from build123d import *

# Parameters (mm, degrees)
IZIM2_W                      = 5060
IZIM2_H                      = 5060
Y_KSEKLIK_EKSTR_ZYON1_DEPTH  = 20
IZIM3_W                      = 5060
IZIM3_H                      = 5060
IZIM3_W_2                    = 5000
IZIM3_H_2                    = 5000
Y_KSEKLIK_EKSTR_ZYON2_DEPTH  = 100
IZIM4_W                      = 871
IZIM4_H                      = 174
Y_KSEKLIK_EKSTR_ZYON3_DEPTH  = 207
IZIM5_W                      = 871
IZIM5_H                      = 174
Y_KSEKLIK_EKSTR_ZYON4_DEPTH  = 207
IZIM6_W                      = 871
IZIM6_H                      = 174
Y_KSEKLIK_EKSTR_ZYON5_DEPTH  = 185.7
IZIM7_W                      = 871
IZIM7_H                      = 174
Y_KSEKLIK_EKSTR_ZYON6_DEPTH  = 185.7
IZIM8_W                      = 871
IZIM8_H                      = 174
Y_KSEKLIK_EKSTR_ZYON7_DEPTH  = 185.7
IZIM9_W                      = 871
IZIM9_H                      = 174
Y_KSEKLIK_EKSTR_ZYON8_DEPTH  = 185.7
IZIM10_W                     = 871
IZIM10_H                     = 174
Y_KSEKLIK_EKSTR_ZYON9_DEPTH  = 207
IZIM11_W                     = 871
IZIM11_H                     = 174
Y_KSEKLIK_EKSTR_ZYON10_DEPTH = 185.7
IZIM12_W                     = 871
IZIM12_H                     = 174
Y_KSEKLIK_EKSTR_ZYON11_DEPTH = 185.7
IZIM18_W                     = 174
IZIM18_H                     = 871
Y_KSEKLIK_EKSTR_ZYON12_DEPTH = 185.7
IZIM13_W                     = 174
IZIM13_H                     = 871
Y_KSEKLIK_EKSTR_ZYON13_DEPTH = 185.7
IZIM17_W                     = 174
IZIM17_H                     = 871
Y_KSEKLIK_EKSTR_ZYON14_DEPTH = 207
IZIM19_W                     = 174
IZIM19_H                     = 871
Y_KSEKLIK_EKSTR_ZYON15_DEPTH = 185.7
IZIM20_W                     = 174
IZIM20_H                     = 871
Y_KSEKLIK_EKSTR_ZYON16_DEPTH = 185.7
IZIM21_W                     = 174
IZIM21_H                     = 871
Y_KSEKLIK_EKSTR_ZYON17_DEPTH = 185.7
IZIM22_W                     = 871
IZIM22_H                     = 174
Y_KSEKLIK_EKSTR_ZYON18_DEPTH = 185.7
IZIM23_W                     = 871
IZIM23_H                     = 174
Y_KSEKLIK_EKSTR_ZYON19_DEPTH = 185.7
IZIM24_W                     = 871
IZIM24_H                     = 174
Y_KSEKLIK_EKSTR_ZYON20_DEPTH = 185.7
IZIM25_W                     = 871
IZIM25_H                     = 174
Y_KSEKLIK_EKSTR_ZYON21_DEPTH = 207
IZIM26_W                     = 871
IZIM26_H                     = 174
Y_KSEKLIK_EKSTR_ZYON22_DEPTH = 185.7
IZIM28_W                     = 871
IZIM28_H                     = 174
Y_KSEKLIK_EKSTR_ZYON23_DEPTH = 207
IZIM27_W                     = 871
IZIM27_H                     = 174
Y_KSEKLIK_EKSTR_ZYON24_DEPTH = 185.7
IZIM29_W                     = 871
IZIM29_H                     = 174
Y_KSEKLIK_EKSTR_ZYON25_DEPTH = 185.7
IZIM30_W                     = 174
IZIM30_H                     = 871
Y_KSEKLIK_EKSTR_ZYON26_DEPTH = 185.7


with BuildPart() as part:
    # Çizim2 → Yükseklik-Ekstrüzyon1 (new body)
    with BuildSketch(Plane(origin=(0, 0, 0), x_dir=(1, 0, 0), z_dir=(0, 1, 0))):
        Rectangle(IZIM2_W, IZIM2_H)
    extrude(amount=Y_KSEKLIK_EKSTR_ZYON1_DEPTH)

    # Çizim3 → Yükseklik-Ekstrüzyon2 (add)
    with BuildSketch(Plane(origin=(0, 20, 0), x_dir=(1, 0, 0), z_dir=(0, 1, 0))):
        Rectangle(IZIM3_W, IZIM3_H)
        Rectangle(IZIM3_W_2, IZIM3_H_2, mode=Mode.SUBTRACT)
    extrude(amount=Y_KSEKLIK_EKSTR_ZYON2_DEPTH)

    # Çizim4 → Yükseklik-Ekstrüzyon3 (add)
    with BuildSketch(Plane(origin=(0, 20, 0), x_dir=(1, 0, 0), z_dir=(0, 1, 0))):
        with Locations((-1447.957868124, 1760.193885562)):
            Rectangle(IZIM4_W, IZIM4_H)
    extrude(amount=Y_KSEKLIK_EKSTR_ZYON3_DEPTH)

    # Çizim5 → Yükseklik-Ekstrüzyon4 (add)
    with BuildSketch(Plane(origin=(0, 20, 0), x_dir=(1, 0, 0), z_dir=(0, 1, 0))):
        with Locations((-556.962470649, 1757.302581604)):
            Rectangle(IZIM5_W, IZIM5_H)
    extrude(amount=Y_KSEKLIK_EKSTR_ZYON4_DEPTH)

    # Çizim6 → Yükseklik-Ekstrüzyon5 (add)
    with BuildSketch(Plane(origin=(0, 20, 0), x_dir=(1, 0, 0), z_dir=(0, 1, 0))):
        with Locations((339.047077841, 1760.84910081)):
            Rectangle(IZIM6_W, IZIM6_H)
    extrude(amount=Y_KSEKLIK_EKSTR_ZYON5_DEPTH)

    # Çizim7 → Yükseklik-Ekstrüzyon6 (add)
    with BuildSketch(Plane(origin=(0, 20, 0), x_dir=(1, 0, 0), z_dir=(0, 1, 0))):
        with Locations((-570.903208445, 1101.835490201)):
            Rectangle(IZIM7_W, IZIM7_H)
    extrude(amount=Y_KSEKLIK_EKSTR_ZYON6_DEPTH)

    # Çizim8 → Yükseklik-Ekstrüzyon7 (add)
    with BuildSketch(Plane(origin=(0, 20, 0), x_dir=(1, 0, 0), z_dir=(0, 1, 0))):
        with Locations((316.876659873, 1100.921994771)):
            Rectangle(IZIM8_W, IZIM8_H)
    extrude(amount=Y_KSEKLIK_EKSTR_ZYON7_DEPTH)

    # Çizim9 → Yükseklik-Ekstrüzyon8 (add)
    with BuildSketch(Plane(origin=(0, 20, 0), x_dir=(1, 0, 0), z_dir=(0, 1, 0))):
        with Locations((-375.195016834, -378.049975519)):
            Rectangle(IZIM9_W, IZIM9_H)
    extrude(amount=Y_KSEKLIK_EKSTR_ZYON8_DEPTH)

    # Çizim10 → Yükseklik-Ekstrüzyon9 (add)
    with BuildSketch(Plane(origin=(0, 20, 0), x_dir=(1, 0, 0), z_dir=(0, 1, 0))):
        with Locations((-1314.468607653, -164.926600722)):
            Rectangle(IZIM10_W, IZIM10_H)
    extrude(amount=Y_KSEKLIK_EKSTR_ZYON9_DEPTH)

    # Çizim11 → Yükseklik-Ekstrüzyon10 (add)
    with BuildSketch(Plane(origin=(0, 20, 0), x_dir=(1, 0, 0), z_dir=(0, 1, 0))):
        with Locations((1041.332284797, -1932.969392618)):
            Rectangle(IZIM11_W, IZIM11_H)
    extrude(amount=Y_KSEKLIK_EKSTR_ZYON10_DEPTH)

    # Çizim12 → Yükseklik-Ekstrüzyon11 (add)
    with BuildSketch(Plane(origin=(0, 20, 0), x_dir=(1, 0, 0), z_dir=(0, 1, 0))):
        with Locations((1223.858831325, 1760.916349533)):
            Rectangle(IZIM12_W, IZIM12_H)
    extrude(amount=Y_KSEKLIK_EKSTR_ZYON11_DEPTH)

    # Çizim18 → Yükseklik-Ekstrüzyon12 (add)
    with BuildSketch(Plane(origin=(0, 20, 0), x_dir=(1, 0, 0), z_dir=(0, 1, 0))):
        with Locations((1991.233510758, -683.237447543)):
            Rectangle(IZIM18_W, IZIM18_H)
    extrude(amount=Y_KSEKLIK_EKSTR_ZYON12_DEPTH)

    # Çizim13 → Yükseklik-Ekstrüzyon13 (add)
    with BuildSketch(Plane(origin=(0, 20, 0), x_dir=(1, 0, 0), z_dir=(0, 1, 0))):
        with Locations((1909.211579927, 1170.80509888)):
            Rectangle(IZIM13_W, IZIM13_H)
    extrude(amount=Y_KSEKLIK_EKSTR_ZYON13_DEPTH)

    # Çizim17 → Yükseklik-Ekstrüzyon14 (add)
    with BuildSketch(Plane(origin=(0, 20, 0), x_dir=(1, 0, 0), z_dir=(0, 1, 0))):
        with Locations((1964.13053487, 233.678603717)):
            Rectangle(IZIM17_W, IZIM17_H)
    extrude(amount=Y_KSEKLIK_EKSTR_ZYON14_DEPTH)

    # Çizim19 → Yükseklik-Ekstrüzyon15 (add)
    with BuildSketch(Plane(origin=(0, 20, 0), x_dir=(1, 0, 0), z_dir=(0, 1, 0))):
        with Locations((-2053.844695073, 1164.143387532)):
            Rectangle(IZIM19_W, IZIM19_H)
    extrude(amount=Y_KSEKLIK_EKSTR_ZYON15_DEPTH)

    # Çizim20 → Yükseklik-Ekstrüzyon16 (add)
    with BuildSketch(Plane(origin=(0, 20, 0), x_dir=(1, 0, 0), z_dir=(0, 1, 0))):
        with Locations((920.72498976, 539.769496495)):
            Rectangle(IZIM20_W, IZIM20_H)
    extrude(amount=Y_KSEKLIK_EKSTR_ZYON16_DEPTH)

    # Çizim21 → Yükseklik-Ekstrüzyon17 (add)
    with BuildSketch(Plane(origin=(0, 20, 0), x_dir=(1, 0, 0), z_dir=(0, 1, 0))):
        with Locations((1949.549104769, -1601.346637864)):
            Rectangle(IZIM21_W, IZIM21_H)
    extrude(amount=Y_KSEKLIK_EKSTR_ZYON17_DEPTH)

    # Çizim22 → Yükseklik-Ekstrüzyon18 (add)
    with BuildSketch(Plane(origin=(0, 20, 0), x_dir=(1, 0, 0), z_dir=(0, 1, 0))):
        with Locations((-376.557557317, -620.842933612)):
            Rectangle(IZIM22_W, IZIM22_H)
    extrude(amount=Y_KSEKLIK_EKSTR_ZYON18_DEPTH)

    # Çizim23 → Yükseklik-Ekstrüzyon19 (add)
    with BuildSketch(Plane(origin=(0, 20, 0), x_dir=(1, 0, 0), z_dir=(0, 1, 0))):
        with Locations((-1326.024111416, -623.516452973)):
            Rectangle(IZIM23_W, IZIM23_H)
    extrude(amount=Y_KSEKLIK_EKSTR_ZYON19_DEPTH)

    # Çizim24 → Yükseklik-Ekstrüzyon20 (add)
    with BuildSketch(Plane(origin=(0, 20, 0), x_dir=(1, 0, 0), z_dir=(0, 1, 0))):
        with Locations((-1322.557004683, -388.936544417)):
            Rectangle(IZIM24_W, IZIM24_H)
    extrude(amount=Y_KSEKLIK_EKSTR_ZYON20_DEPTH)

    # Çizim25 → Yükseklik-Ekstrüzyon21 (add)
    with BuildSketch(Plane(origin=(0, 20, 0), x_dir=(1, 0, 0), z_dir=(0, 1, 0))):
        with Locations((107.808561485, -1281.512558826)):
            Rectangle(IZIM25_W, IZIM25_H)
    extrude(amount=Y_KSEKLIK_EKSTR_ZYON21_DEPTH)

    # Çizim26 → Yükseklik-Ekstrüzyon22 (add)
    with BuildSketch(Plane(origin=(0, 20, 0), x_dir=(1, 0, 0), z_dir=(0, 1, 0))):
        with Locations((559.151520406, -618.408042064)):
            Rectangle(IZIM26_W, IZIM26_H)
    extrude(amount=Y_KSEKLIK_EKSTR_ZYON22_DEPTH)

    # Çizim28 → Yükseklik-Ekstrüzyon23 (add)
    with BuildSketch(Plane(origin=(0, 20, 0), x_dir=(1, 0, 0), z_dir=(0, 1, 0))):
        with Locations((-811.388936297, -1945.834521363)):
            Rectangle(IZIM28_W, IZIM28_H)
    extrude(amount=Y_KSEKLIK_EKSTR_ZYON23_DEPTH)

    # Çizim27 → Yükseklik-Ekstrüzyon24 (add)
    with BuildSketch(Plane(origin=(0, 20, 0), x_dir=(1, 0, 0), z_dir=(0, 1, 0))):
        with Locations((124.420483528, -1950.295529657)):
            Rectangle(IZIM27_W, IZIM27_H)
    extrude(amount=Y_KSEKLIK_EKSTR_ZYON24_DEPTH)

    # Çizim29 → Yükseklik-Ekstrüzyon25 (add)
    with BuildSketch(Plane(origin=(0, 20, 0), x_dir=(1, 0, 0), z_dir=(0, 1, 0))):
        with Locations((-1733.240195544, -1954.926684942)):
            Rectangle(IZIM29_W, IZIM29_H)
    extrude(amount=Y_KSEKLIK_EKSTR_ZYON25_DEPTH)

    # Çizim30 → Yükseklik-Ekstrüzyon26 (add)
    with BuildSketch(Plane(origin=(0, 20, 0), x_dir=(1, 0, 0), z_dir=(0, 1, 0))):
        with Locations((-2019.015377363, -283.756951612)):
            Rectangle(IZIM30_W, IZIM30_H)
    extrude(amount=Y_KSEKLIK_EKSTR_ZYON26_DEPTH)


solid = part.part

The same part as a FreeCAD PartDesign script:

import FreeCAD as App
import Part
import Sketcher

V = App.Vector

doc = App.newDocument("Part")
body = doc.addObject("PartDesign::Body", "Body")

# Sketch on XZ plane
sketch1 = body.newObject("Sketcher::SketchObject", "Sketch")
sketch1.AttachmentSupport = (doc.getObject("XZ_Plane"), [""])
sketch1.MapMode = "FlatFace"
sketch1.addGeometry([
    Part.LineSegment(V(-2530, -2530, 0), V(-2530, 2530, 0)),
    Part.LineSegment(V(-2530, 2530, 0), V(2530, 2530, 0)),
    Part.LineSegment(V(2530, 2530, 0), V(2530, -2530, 0)),
    Part.LineSegment(V(2530, -2530, 0), V(-2530, -2530, 0)),
], False)
sketch1.addConstraint([
    Sketcher.Constraint("Coincident", 0, 2, 1, 1),
    Sketcher.Constraint("Coincident", 1, 2, 2, 1),
    Sketcher.Constraint("Coincident", 2, 2, 3, 1),
    Sketcher.Constraint("Coincident", 3, 2, 0, 1),
    Sketcher.Constraint("Vertical", 0),
    Sketcher.Constraint("Horizontal", 1),
    Sketcher.Constraint("Vertical", 2),
    Sketcher.Constraint("Horizontal", 3),
    Sketcher.Constraint("Symmetric", 0, 2, 2, 2, -1, 1),
    Sketcher.Constraint("Equal", 3, 0),
    Sketcher.Constraint("DistanceX", 1, 1, 1, 2, 5060.0),
])
pad1 = body.newObject("PartDesign::Pad", "Pad")
pad1.Profile = sketch1
pad1.Length = 20
pad1.Reversed = True

# Sketch on XZ plane
sketch2 = body.newObject("Sketcher::SketchObject", "Sketch001")
sketch2.AttachmentSupport = (doc.getObject("XZ_Plane"), [""])
sketch2.MapMode = "FlatFace"
sketch2.AttachmentOffset = App.Placement(V(0, 0, -20), App.Rotation())
sketch2.addGeometry([
    Part.LineSegment(V(-2530, -2530, 0), V(-2530, 2530, 0)),  # 0
    Part.LineSegment(V(-2530, 2530, 0), V(2530, 2530, 0)),  # 1
    Part.LineSegment(V(2530, 2530, 0), V(2530, -2530, 0)),  # 2
    Part.LineSegment(V(2530, -2530, 0), V(-2530, -2530, 0)),  # 3
    Part.LineSegment(V(2500, 2500, 0), V(-2500, 2500, 0)),  # 4
    Part.LineSegment(V(-2500, 2500, 0), V(-2500, -2500, 0)),  # 5
    Part.LineSegment(V(-2500, -2500, 0), V(2500, -2500, 0)),  # 6
    Part.LineSegment(V(2500, -2500, 0), V(2500, 2500, 0)),  # 7
], False)
sketch2.addConstraint([
    Sketcher.Constraint("Coincident", 0, 2, 1, 1),
    Sketcher.Constraint("Coincident", 1, 2, 2, 1),
    Sketcher.Constraint("Coincident", 2, 2, 3, 1),
    Sketcher.Constraint("Coincident", 3, 2, 0, 1),
    Sketcher.Constraint("Coincident", 4, 2, 5, 1),
    Sketcher.Constraint("Coincident", 5, 2, 6, 1),
    Sketcher.Constraint("Coincident", 6, 2, 7, 1),
    Sketcher.Constraint("Coincident", 7, 2, 4, 1),
    Sketcher.Constraint("Vertical", 0),
    Sketcher.Constraint("Horizontal", 1),
    Sketcher.Constraint("Vertical", 2),
    Sketcher.Constraint("Horizontal", 3),
    Sketcher.Constraint("Horizontal", 4),
    Sketcher.Constraint("Vertical", 5),
    Sketcher.Constraint("Horizontal", 6),
    Sketcher.Constraint("Vertical", 7),
    Sketcher.Constraint("Symmetric", 0, 2, 2, 2, -1, 1),
    Sketcher.Constraint("Symmetric", 4, 2, 6, 2, -1, 1),
    Sketcher.Constraint("Equal", 3, 0),
    Sketcher.Constraint("Equal", 6, 5),
    Sketcher.Constraint("DistanceX", 1, 1, 1, 2, 5060.0),
    Sketcher.Constraint("DistanceX", 4, 2, 4, 1, 5000.0),
])
pad2 = body.newObject("PartDesign::Pad", "Pad001")
pad2.Profile = sketch2
pad2.Length = 100
pad2.Reversed = True

# Sketch on XZ plane
sketch3 = body.newObject("Sketcher::SketchObject", "Sketch002")
sketch3.AttachmentSupport = (doc.getObject("XZ_Plane"), [""])
sketch3.MapMode = "FlatFace"
sketch3.AttachmentOffset = App.Placement(V(0, 0, -20), App.Rotation())
sketch3.addGeometry([
    Part.LineSegment(V(-1883, -1847, 0), V(-1883, -1673, 0)),
    Part.LineSegment(V(-1883, -1673, 0), V(-1012, -1673, 0)),
    Part.LineSegment(V(-1012, -1673, 0), V(-1012, -1847, 0)),
    Part.LineSegment(V(-1012, -1847, 0), V(-1883, -1847, 0)),
], False)
sketch3.addConstraint([
    Sketcher.Constraint("Coincident", 0, 2, 1, 1),
    Sketcher.Constraint("Coincident", 1, 2, 2, 1),
    Sketcher.Constraint("Coincident", 2, 2, 3, 1),
    Sketcher.Constraint("Coincident", 3, 2, 0, 1),
    Sketcher.Constraint("Vertical", 0),
    Sketcher.Constraint("Horizontal", 1),
    Sketcher.Constraint("Vertical", 2),
    Sketcher.Constraint("Horizontal", 3),
    Sketcher.Constraint("DistanceX", 1, 1, 1, 2, 871.0),
    Sketcher.Constraint("DistanceY", 0, 1, 0, 2, 174.0),
    Sketcher.Constraint("DistanceX", 0, 2, -1, 1, 1883.457868),
    Sketcher.Constraint("DistanceY", 0, 2, -1, 1, 1673.193886),
])
pad3 = body.newObject("PartDesign::Pad", "Pad002")
pad3.Profile = sketch3
pad3.Length = 207
pad3.Reversed = True

# Sketch on XZ plane
sketch4 = body.newObject("Sketcher::SketchObject", "Sketch003")
sketch4.AttachmentSupport = (doc.getObject("XZ_Plane"), [""])
sketch4.MapMode = "FlatFace"
sketch4.AttachmentOffset = App.Placement(V(0, 0, -20), App.Rotation())
sketch4.addGeometry([
    Part.LineSegment(V(-992, -1844, 0), V(-992, -1670, 0)),
    Part.LineSegment(V(-992, -1670, 0), V(-121, -1670, 0)),
    Part.LineSegment(V(-121, -1670, 0), V(-121, -1844, 0)),
    Part.LineSegment(V(-121, -1844, 0), V(-992, -1844, 0)),
], False)
sketch4.addConstraint([
    Sketcher.Constraint("Coincident", 0, 2, 1, 1),
    Sketcher.Constraint("Coincident", 1, 2, 2, 1),
    Sketcher.Constraint("Coincident", 2, 2, 3, 1),
    Sketcher.Constraint("Coincident", 3, 2, 0, 1),
    Sketcher.Constraint("Vertical", 0),
    Sketcher.Constraint("Horizontal", 1),
    Sketcher.Constraint("Vertical", 2),
    Sketcher.Constraint("Horizontal", 3),
    Sketcher.Constraint("DistanceX", 1, 1, 1, 2, 871.0),
    Sketcher.Constraint("DistanceY", 0, 1, 0, 2, 174.0),
    Sketcher.Constraint("DistanceX", 0, 2, -1, 1, 992.462471),
    Sketcher.Constraint("DistanceY", 0, 2, -1, 1, 1670.302582),
])
pad4 = body.newObject("PartDesign::Pad", "Pad003")
pad4.Profile = sketch4
pad4.Length = 207
pad4.Reversed = True

# Sketch on XZ plane
sketch5 = body.newObject("Sketcher::SketchObject", "Sketch004")
sketch5.AttachmentSupport = (doc.getObject("XZ_Plane"), [""])
sketch5.MapMode = "FlatFace"
sketch5.AttachmentOffset = App.Placement(V(0, 0, -20), App.Rotation())
sketch5.addGeometry([
    Part.LineSegment(V(-96, -1848, 0), V(-96, -1674, 0)),
    Part.LineSegment(V(-96, -1674, 0), V(775, -1674, 0)),
    Part.LineSegment(V(775, -1674, 0), V(775, -1848, 0)),
    Part.LineSegment(V(775, -1848, 0), V(-96, -1848, 0)),
], False)
sketch5.addConstraint([
    Sketcher.Constraint("Coincident", 0, 2, 1, 1),
    Sketcher.Constraint("Coincident", 1, 2, 2, 1),
    Sketcher.Constraint("Coincident", 2, 2, 3, 1),
    Sketcher.Constraint("Coincident", 3, 2, 0, 1),
    Sketcher.Constraint("Vertical", 0),
    Sketcher.Constraint("Horizontal", 1),
    Sketcher.Constraint("Vertical", 2),
    Sketcher.Constraint("Horizontal", 3),
    Sketcher.Constraint("DistanceX", 1, 1, 1, 2, 871.0),
    Sketcher.Constraint("DistanceY", 0, 1, 0, 2, 174.0),
    Sketcher.Constraint("DistanceY", 0, 2, -1, 1, 1673.849101),
    Sketcher.Constraint("DistanceX", 0, 2, -1, 1, 96.452922),
])
pad5 = body.newObject("PartDesign::Pad", "Pad004")
pad5.Profile = sketch5
pad5.Length = 185.7
pad5.Reversed = True

# Sketch on XZ plane
sketch6 = body.newObject("Sketcher::SketchObject", "Sketch005")
sketch6.AttachmentSupport = (doc.getObject("XZ_Plane"), [""])
sketch6.MapMode = "FlatFace"
sketch6.AttachmentOffset = App.Placement(V(0, 0, -20), App.Rotation())
sketch6.addGeometry([
    Part.LineSegment(V(-1006, -1189, 0), V(-1006, -1015, 0)),
    Part.LineSegment(V(-1006, -1015, 0), V(-135, -1015, 0)),
    Part.LineSegment(V(-135, -1015, 0), V(-135, -1189, 0)),
    Part.LineSegment(V(-135, -1189, 0), V(-1006, -1189, 0)),
], False)
sketch6.addConstraint([
    Sketcher.Constraint("Coincident", 0, 2, 1, 1),
    Sketcher.Constraint("Coincident", 1, 2, 2, 1),
    Sketcher.Constraint("Coincident", 2, 2, 3, 1),
    Sketcher.Constraint("Coincident", 3, 2, 0, 1),
    Sketcher.Constraint("Vertical", 0),
    Sketcher.Constraint("Horizontal", 1),
    Sketcher.Constraint("Vertical", 2),
    Sketcher.Constraint("Horizontal", 3),
    Sketcher.Constraint("DistanceX", 1, 1, 1, 2, 871.0),
    Sketcher.Constraint("DistanceY", 0, 1, 0, 2, 174.0),
    Sketcher.Constraint("DistanceX", 0, 2, -1, 1, 1006.403208),
    Sketcher.Constraint("DistanceY", 0, 2, -1, 1, 1014.83549),
])
pad6 = body.newObject("PartDesign::Pad", "Pad005")
pad6.Profile = sketch6
pad6.Length = 185.7
pad6.Reversed = True

# Sketch on XZ plane
sketch7 = body.newObject("Sketcher::SketchObject", "Sketch006")
sketch7.AttachmentSupport = (doc.getObject("XZ_Plane"), [""])
sketch7.MapMode = "FlatFace"
sketch7.AttachmentOffset = App.Placement(V(0, 0, -20), App.Rotation())
sketch7.addGeometry([
    Part.LineSegment(V(-119, -1188, 0), V(-119, -1014, 0)),
    Part.LineSegment(V(-119, -1014, 0), V(752, -1014, 0)),
    Part.LineSegment(V(752, -1014, 0), V(752, -1188, 0)),
    Part.LineSegment(V(752, -1188, 0), V(-119, -1188, 0)),
], False)
sketch7.addConstraint([
    Sketcher.Constraint("Coincident", 0, 2, 1, 1),
    Sketcher.Constraint("Coincident", 1, 2, 2, 1),
    Sketcher.Constraint("Coincident", 2, 2, 3, 1),
    Sketcher.Constraint("Coincident", 3, 2, 0, 1),
    Sketcher.Constraint("Vertical", 0),
    Sketcher.Constraint("Horizontal", 1),
    Sketcher.Constraint("Vertical", 2),
    Sketcher.Constraint("Horizontal", 3),
    Sketcher.Constraint("DistanceX", 1, 1, 1, 2, 871.0),
    Sketcher.Constraint("DistanceY", 0, 1, 0, 2, 174.0),
    Sketcher.Constraint("DistanceX", 0, 2, -1, 1, 118.62334),
    Sketcher.Constraint("DistanceY", 0, 2, -1, 1, 1013.921995),
])
pad7 = body.newObject("PartDesign::Pad", "Pad006")
pad7.Profile = sketch7
pad7.Length = 185.7
pad7.Reversed = True

# Sketch on XZ plane
sketch8 = body.newObject("Sketcher::SketchObject", "Sketch007")
sketch8.AttachmentSupport = (doc.getObject("XZ_Plane"), [""])
sketch8.MapMode = "FlatFace"
sketch8.AttachmentOffset = App.Placement(V(0, 0, -20), App.Rotation())
sketch8.addGeometry([
    Part.LineSegment(V(-811, 291, 0), V(-811, 465, 0)),
    Part.LineSegment(V(-811, 465, 0), V(60, 465, 0)),
    Part.LineSegment(V(60, 465, 0), V(60, 291, 0)),
    Part.LineSegment(V(60, 291, 0), V(-811, 291, 0)),
], False)
sketch8.addConstraint([
    Sketcher.Constraint("Coincident", 0, 2, 1, 1),
    Sketcher.Constraint("Coincident", 1, 2, 2, 1),
    Sketcher.Constraint("Coincident", 2, 2, 3, 1),
    Sketcher.Constraint("Coincident", 3, 2, 0, 1),
    Sketcher.Constraint("Vertical", 0),
    Sketcher.Constraint("Horizontal", 1),
    Sketcher.Constraint("Vertical", 2),
    Sketcher.Constraint("Horizontal", 3),
    Sketcher.Constraint("DistanceX", 1, 1, 1, 2, 871.0),
    Sketcher.Constraint("DistanceY", 0, 1, 0, 2, 174.0),
    Sketcher.Constraint("DistanceX", 0, 2, -1, 1, 810.695017),
    Sketcher.Constraint("DistanceY", -1, 1, 0, 2, 465.049976),
])
pad8 = body.newObject("PartDesign::Pad", "Pad007")
pad8.Profile = sketch8
pad8.Length = 185.7
pad8.Reversed = True

# Sketch on XZ plane
sketch9 = body.newObject("Sketcher::SketchObject", "Sketch008")
sketch9.AttachmentSupport = (doc.getObject("XZ_Plane"), [""])
sketch9.MapMode = "FlatFace"
sketch9.AttachmentOffset = App.Placement(V(0, 0, -20), App.Rotation())
sketch9.addGeometry([
    Part.LineSegment(V(-1750, 78, 0), V(-1750, 252, 0)),
    Part.LineSegment(V(-1750, 252, 0), V(-879, 252, 0)),
    Part.LineSegment(V(-879, 252, 0), V(-879, 78, 0)),
    Part.LineSegment(V(-879, 78, 0), V(-1750, 78, 0)),
], False)
sketch9.addConstraint([
    Sketcher.Constraint("Coincident", 0, 2, 1, 1),
    Sketcher.Constraint("Coincident", 1, 2, 2, 1),
    Sketcher.Constraint("Coincident", 2, 2, 3, 1),
    Sketcher.Constraint("Coincident", 3, 2, 0, 1),
    Sketcher.Constraint("Vertical", 0),
    Sketcher.Constraint("Horizontal", 1),
    Sketcher.Constraint("Vertical", 2),
    Sketcher.Constraint("Horizontal", 3),
    Sketcher.Constraint("DistanceX", 1, 1, 1, 2, 871.0),
    Sketcher.Constraint("DistanceY", 0, 1, 0, 2, 174.0),
    Sketcher.Constraint("DistanceY", -1, 1, 0, 2, 251.926601),
    Sketcher.Constraint("DistanceX", 0, 2, -1, 1, 1749.968608),
])
pad9 = body.newObject("PartDesign::Pad", "Pad008")
pad9.Profile = sketch9
pad9.Length = 207
pad9.Reversed = True

# Sketch on XZ plane
sketch10 = body.newObject("Sketcher::SketchObject", "Sketch009")
sketch10.AttachmentSupport = (doc.getObject("XZ_Plane"), [""])
sketch10.MapMode = "FlatFace"
sketch10.AttachmentOffset = App.Placement(V(0, 0, -20), App.Rotation())
sketch10.addGeometry([
    Part.LineSegment(V(606, 1846, 0), V(606, 2020, 0)),
    Part.LineSegment(V(606, 2020, 0), V(1477, 2020, 0)),
    Part.LineSegment(V(1477, 2020, 0), V(1477, 1846, 0)),
    Part.LineSegment(V(1477, 1846, 0), V(606, 1846, 0)),
], False)
sketch10.addConstraint([
    Sketcher.Constraint("Coincident", 0, 2, 1, 1),
    Sketcher.Constraint("Coincident", 1, 2, 2, 1),
    Sketcher.Constraint("Coincident", 2, 2, 3, 1),
    Sketcher.Constraint("Coincident", 3, 2, 0, 1),
    Sketcher.Constraint("Vertical", 0),
    Sketcher.Constraint("Horizontal", 1),
    Sketcher.Constraint("Vertical", 2),
    Sketcher.Constraint("Horizontal", 3),
    Sketcher.Constraint("DistanceX", 1, 1, 1, 2, 871.0),
    Sketcher.Constraint("DistanceY", 0, 1, 0, 2, 174.0),
    Sketcher.Constraint("DistanceX", -1, 1, 0, 2, 605.832285),
    Sketcher.Constraint("DistanceY", -1, 1, 0, 2, 2019.969393),
])
pad10 = body.newObject("PartDesign::Pad", "Pad009")
pad10.Profile = sketch10
pad10.Length = 185.7
pad10.Reversed = True

# Sketch on XZ plane
sketch11 = body.newObject("Sketcher::SketchObject", "Sketch010")
sketch11.AttachmentSupport = (doc.getObject("XZ_Plane"), [""])
sketch11.MapMode = "FlatFace"
sketch11.AttachmentOffset = App.Placement(V(0, 0, -20), App.Rotation())
sketch11.addGeometry([
    Part.LineSegment(V(788, -1848, 0), V(788, -1674, 0)),
    Part.LineSegment(V(788, -1674, 0), V(1659, -1674, 0)),
    Part.LineSegment(V(1659, -1674, 0), V(1659, -1848, 0)),
    Part.LineSegment(V(1659, -1848, 0), V(788, -1848, 0)),
], False)
sketch11.addConstraint([
    Sketcher.Constraint("Coincident", 0, 2, 1, 1),
    Sketcher.Constraint("Coincident", 1, 2, 2, 1),
    Sketcher.Constraint("Coincident", 2, 2, 3, 1),
    Sketcher.Constraint("Coincident", 3, 2, 0, 1),
    Sketcher.Constraint("Vertical", 0),
    Sketcher.Constraint("Horizontal", 1),
    Sketcher.Constraint("Vertical", 2),
    Sketcher.Constraint("Horizontal", 3),
    Sketcher.Constraint("DistanceX", 1, 1, 1, 2, 871.0),
    Sketcher.Constraint("DistanceY", 0, 1, 0, 2, 174.0),
    Sketcher.Constraint("DistanceX", -1, 1, 0, 2, 788.358831),
    Sketcher.Constraint("DistanceY", 0, 2, -1, 1, 1673.91635),
])
pad11 = body.newObject("PartDesign::Pad", "Pad010")
pad11.Profile = sketch11
pad11.Length = 185.7
pad11.Reversed = True

# Sketch on XZ plane
sketch12 = body.newObject("Sketcher::SketchObject", "Sketch011")
sketch12.AttachmentSupport = (doc.getObject("XZ_Plane"), [""])
sketch12.MapMode = "FlatFace"
sketch12.AttachmentOffset = App.Placement(V(0, 0, -20), App.Rotation())
sketch12.addGeometry([
    Part.LineSegment(V(1904, 248, 0), V(1904, 1119, 0)),
    Part.LineSegment(V(1904, 1119, 0), V(2078, 1119, 0)),
    Part.LineSegment(V(2078, 1119, 0), V(2078, 248, 0)),
    Part.LineSegment(V(2078, 248, 0), V(1904, 248, 0)),
], False)
sketch12.addConstraint([
    Sketcher.Constraint("Coincident", 0, 2, 1, 1),
    Sketcher.Constraint("Coincident", 1, 2, 2, 1),
    Sketcher.Constraint("Coincident", 2, 2, 3, 1),
    Sketcher.Constraint("Coincident", 3, 2, 0, 1),
    Sketcher.Constraint("Vertical", 0),
    Sketcher.Constraint("Horizontal", 1),
    Sketcher.Constraint("Vertical", 2),
    Sketcher.Constraint("Horizontal", 3),
    Sketcher.Constraint("DistanceX", 1, 1, 1, 2, 174.0),
    Sketcher.Constraint("DistanceY", 0, 1, 0, 2, 871.0),
    Sketcher.Constraint("DistanceX", -1, 1, 0, 2, 1904.233511),
    Sketcher.Constraint("DistanceY", -1, 1, 0, 2, 1118.737448),
])
pad12 = body.newObject("PartDesign::Pad", "Pad011")
pad12.Profile = sketch12
pad12.Length = 185.7
pad12.Reversed = True

# Sketch on XZ plane
sketch13 = body.newObject("Sketcher::SketchObject", "Sketch012")
sketch13.AttachmentSupport = (doc.getObject("XZ_Plane"), [""])
sketch13.MapMode = "FlatFace"
sketch13.AttachmentOffset = App.Placement(V(0, 0, -20), App.Rotation())
sketch13.addGeometry([
    Part.LineSegment(V(1822, -1606, 0), V(1822, -735, 0)),
    Part.LineSegment(V(1822, -735, 0), V(1996, -735, 0)),
    Part.LineSegment(V(1996, -735, 0), V(1996, -1606, 0)),
    Part.LineSegment(V(1996, -1606, 0), V(1822, -1606, 0)),
], False)
sketch13.addConstraint([
    Sketcher.Constraint("Coincident", 0, 2, 1, 1),
    Sketcher.Constraint("Coincident", 1, 2, 2, 1),
    Sketcher.Constraint("Coincident", 2, 2, 3, 1),
    Sketcher.Constraint("Coincident", 3, 2, 0, 1),
    Sketcher.Constraint("Vertical", 0),
    Sketcher.Constraint("Horizontal", 1),
    Sketcher.Constraint("Vertical", 2),
    Sketcher.Constraint("Horizontal", 3),
    Sketcher.Constraint("DistanceX", 1, 1, 1, 2, 174.0),
    Sketcher.Constraint("DistanceY", 0, 1, 0, 2, 871.0),
    Sketcher.Constraint("DistanceY", 0, 2, -1, 1, 735.305099),
    Sketcher.Constraint("DistanceX", -1, 1, 0, 2, 1822.21158),
])
pad13 = body.newObject("PartDesign::Pad", "Pad012")
pad13.Profile = sketch13
pad13.Length = 185.7
pad13.Reversed = True

# Sketch on XZ plane
sketch14 = body.newObject("Sketcher::SketchObject", "Sketch013")
sketch14.AttachmentSupport = (doc.getObject("XZ_Plane"), [""])
sketch14.MapMode = "FlatFace"
sketch14.AttachmentOffset = App.Placement(V(0, 0, -20), App.Rotation())
sketch14.addGeometry([
    Part.LineSegment(V(1877, -669, 0), V(1877, 202, 0)),
    Part.LineSegment(V(1877, 202, 0), V(2051, 202, 0)),
    Part.LineSegment(V(2051, 202, 0), V(2051, -669, 0)),
    Part.LineSegment(V(2051, -669, 0), V(1877, -669, 0)),
], False)
sketch14.addConstraint([
    Sketcher.Constraint("Coincident", 0, 2, 1, 1),
    Sketcher.Constraint("Coincident", 1, 2, 2, 1),
    Sketcher.Constraint("Coincident", 2, 2, 3, 1),
    Sketcher.Constraint("Coincident", 3, 2, 0, 1),
    Sketcher.Constraint("Vertical", 0),
    Sketcher.Constraint("Horizontal", 1),
    Sketcher.Constraint("Vertical", 2),
    Sketcher.Constraint("Horizontal", 3),
    Sketcher.Constraint("DistanceX", 1, 1, 1, 2, 174.0),
    Sketcher.Constraint("DistanceY", 0, 1, 0, 2, 871.0),
    Sketcher.Constraint("DistanceX", -1, 1, 0, 2, 1877.130535),
    Sketcher.Constraint("DistanceY", -1, 1, 0, 2, 201.821396),
])
pad14 = body.newObject("PartDesign::Pad", "Pad013")
pad14.Profile = sketch14
pad14.Length = 207
pad14.Reversed = True

# Sketch on XZ plane
sketch15 = body.newObject("Sketcher::SketchObject", "Sketch014")
sketch15.AttachmentSupport = (doc.getObject("XZ_Plane"), [""])
sketch15.MapMode = "FlatFace"
sketch15.AttachmentOffset = App.Placement(V(0, 0, -20), App.Rotation())
sketch15.addGeometry([
    Part.LineSegment(V(-2141, -1600, 0), V(-2141, -729, 0)),
    Part.LineSegment(V(-2141, -729, 0), V(-1967, -729, 0)),
    Part.LineSegment(V(-1967, -729, 0), V(-1967, -1600, 0)),
    Part.LineSegment(V(-1967, -1600, 0), V(-2141, -1600, 0)),
], False)
sketch15.addConstraint([
    Sketcher.Constraint("Coincident", 0, 2, 1, 1),
    Sketcher.Constraint("Coincident", 1, 2, 2, 1),
    Sketcher.Constraint("Coincident", 2, 2, 3, 1),
    Sketcher.Constraint("Coincident", 3, 2, 0, 1),
    Sketcher.Constraint("Vertical", 0),
    Sketcher.Constraint("Horizontal", 1),
    Sketcher.Constraint("Vertical", 2),
    Sketcher.Constraint("Horizontal", 3),
    Sketcher.Constraint("DistanceX", 1, 1, 1, 2, 174.0),
    Sketcher.Constraint("DistanceY", 0, 1, 0, 2, 871.0),
    Sketcher.Constraint("DistanceX", 0, 2, -1, 1, 2140.844695),
    Sketcher.Constraint("DistanceY", 0, 2, -1, 1, 728.643388),
])
pad15 = body.newObject("PartDesign::Pad", "Pad014")
pad15.Profile = sketch15
pad15.Length = 185.7
pad15.Reversed = True

# Sketch on XZ plane
sketch16 = body.newObject("Sketcher::SketchObject", "Sketch015")
sketch16.AttachmentSupport = (doc.getObject("XZ_Plane"), [""])
sketch16.MapMode = "FlatFace"
sketch16.AttachmentOffset = App.Placement(V(0, 0, -20), App.Rotation())
sketch16.addGeometry([
    Part.LineSegment(V(834, -975, 0), V(834, -104, 0)),
    Part.LineSegment(V(834, -104, 0), V(1008, -104, 0)),
    Part.LineSegment(V(1008, -104, 0), V(1008, -975, 0)),
    Part.LineSegment(V(1008, -975, 0), V(834, -975, 0)),
], False)
sketch16.addConstraint([
    Sketcher.Constraint("Coincident", 0, 2, 1, 1),
    Sketcher.Constraint("Coincident", 1, 2, 2, 1),
    Sketcher.Constraint("Coincident", 2, 2, 3, 1),
    Sketcher.Constraint("Coincident", 3, 2, 0, 1),
    Sketcher.Constraint("Vertical", 0),
    Sketcher.Constraint("Horizontal", 1),
    Sketcher.Constraint("Vertical", 2),
    Sketcher.Constraint("Horizontal", 3),
    Sketcher.Constraint("DistanceX", 1, 1, 1, 2, 174.0),
    Sketcher.Constraint("DistanceY", 0, 1, 0, 2, 871.0),
    Sketcher.Constraint("DistanceX", -1, 1, 0, 2, 833.72499),
    Sketcher.Constraint("DistanceY", 0, 2, -1, 1, 104.269496),
])
pad16 = body.newObject("PartDesign::Pad", "Pad015")
pad16.Profile = sketch16
pad16.Length = 185.7
pad16.Reversed = True

# Sketch on XZ plane
sketch17 = body.newObject("Sketcher::SketchObject", "Sketch016")
sketch17.AttachmentSupport = (doc.getObject("XZ_Plane"), [""])
sketch17.MapMode = "FlatFace"
sketch17.AttachmentOffset = App.Placement(V(0, 0, -20), App.Rotation())
sketch17.addGeometry([
    Part.LineSegment(V(1863, 1166, 0), V(1863, 2037, 0)),
    Part.LineSegment(V(1863, 2037, 0), V(2037, 2037, 0)),
    Part.LineSegment(V(2037, 2037, 0), V(2037, 1166, 0)),
    Part.LineSegment(V(2037, 1166, 0), V(1863, 1166, 0)),
], False)
sketch17.addConstraint([
    Sketcher.Constraint("Coincident", 0, 2, 1, 1),
    Sketcher.Constraint("Coincident", 1, 2, 2, 1),
    Sketcher.Constraint("Coincident", 2, 2, 3, 1),
    Sketcher.Constraint("Coincident", 3, 2, 0, 1),
    Sketcher.Constraint("Vertical", 0),
    Sketcher.Constraint("Horizontal", 1),
    Sketcher.Constraint("Vertical", 2),
    Sketcher.Constraint("Horizontal", 3),
    Sketcher.Constraint("DistanceX", 1, 1, 1, 2, 174.0),
    Sketcher.Constraint("DistanceY", 0, 1, 0, 2, 871.0),
    Sketcher.Constraint("DistanceX", -1, 1, 0, 2, 1862.549105),
    Sketcher.Constraint("DistanceY", -1, 1, 0, 2, 2036.846638),
])
pad17 = body.newObject("PartDesign::Pad", "Pad016")
pad17.Profile = sketch17
pad17.Length = 185.7
pad17.Reversed = True

# Sketch on XZ plane
sketch18 = body.newObject("Sketcher::SketchObject", "Sketch017")
sketch18.AttachmentSupport = (doc.getObject("XZ_Plane"), [""])
sketch18.MapMode = "FlatFace"
sketch18.AttachmentOffset = App.Placement(V(0, 0, -20), App.Rotation())
sketch18.addGeometry([
    Part.LineSegment(V(-812, 534, 0), V(-812, 708, 0)),
    Part.LineSegment(V(-812, 708, 0), V(59, 708, 0)),
    Part.LineSegment(V(59, 708, 0), V(59, 534, 0)),
    Part.LineSegment(V(59, 534, 0), V(-812, 534, 0)),
], False)
sketch18.addConstraint([
    Sketcher.Constraint("Coincident", 0, 2, 1, 1),
    Sketcher.Constraint("Coincident", 1, 2, 2, 1),
    Sketcher.Constraint("Coincident", 2, 2, 3, 1),
    Sketcher.Constraint("Coincident", 3, 2, 0, 1),
    Sketcher.Constraint("Vertical", 0),
    Sketcher.Constraint("Horizontal", 1),
    Sketcher.Constraint("Vertical", 2),
    Sketcher.Constraint("Horizontal", 3),
    Sketcher.Constraint("DistanceX", 1, 1, 1, 2, 871.0),
    Sketcher.Constraint("DistanceY", 0, 1, 0, 2, 174.0),
    Sketcher.Constraint("DistanceX", 0, 2, -1, 1, 812.057557),
    Sketcher.Constraint("DistanceY", -1, 1, 0, 2, 707.842934),
])
pad18 = body.newObject("PartDesign::Pad", "Pad017")
pad18.Profile = sketch18
pad18.Length = 185.7
pad18.Reversed = True

# Sketch on XZ plane
sketch19 = body.newObject("Sketcher::SketchObject", "Sketch018")
sketch19.AttachmentSupport = (doc.getObject("XZ_Plane"), [""])
sketch19.MapMode = "FlatFace"
sketch19.AttachmentOffset = App.Placement(V(0, 0, -20), App.Rotation())
sketch19.addGeometry([
    Part.LineSegment(V(-1762, 537, 0), V(-1762, 711, 0)),
    Part.LineSegment(V(-1762, 711, 0), V(-891, 711, 0)),
    Part.LineSegment(V(-891, 711, 0), V(-891, 537, 0)),
    Part.LineSegment(V(-891, 537, 0), V(-1762, 537, 0)),
], False)
sketch19.addConstraint([
    Sketcher.Constraint("Coincident", 0, 2, 1, 1),
    Sketcher.Constraint("Coincident", 1, 2, 2, 1),
    Sketcher.Constraint("Coincident", 2, 2, 3, 1),
    Sketcher.Constraint("Coincident", 3, 2, 0, 1),
    Sketcher.Constraint("Vertical", 0),
    Sketcher.Constraint("Horizontal", 1),
    Sketcher.Constraint("Vertical", 2),
    Sketcher.Constraint("Horizontal", 3),
    Sketcher.Constraint("DistanceX", 1, 1, 1, 2, 871.0),
    Sketcher.Constraint("DistanceY", 0, 1, 0, 2, 174.0),
    Sketcher.Constraint("DistanceX", 0, 2, -1, 1, 1761.524111),
    Sketcher.Constraint("DistanceY", -1, 1, 0, 2, 710.516453),
])
pad19 = body.newObject("PartDesign::Pad", "Pad018")
pad19.Profile = sketch19
pad19.Length = 185.7
pad19.Reversed = True

# Sketch on XZ plane
sketch20 = body.newObject("Sketcher::SketchObject", "Sketch019")
sketch20.AttachmentSupport = (doc.getObject("XZ_Plane"), [""])
sketch20.MapMode = "FlatFace"
sketch20.AttachmentOffset = App.Placement(V(0, 0, -20), App.Rotation())
sketch20.addGeometry([
    Part.LineSegment(V(-1758, 302, 0), V(-1758, 476, 0)),
    Part.LineSegment(V(-1758, 476, 0), V(-887, 476, 0)),
    Part.LineSegment(V(-887, 476, 0), V(-887, 302, 0)),
    Part.LineSegment(V(-887, 302, 0), V(-1758, 302, 0)),
], False)
sketch20.addConstraint([
    Sketcher.Constraint("Coincident", 0, 2, 1, 1),
    Sketcher.Constraint("Coincident", 1, 2, 2, 1),
    Sketcher.Constraint("Coincident", 2, 2, 3, 1),
    Sketcher.Constraint("Coincident", 3, 2, 0, 1),
    Sketcher.Constraint("Vertical", 0),
    Sketcher.Constraint("Horizontal", 1),
    Sketcher.Constraint("Vertical", 2),
    Sketcher.Constraint("Horizontal", 3),
    Sketcher.Constraint("DistanceX", 1, 1, 1, 2, 871.0),
    Sketcher.Constraint("DistanceY", 0, 1, 0, 2, 174.0),
    Sketcher.Constraint("DistanceX", 0, 2, -1, 1, 1758.057005),
    Sketcher.Constraint("DistanceY", -1, 1, 0, 2, 475.936544),
])
pad20 = body.newObject("PartDesign::Pad", "Pad019")
pad20.Profile = sketch20
pad20.Length = 185.7
pad20.Reversed = True

# Sketch on XZ plane
sketch21 = body.newObject("Sketcher::SketchObject", "Sketch020")
sketch21.AttachmentSupport = (doc.getObject("XZ_Plane"), [""])
sketch21.MapMode = "FlatFace"
sketch21.AttachmentOffset = App.Placement(V(0, 0, -20), App.Rotation())
sketch21.addGeometry([
    Part.LineSegment(V(-328, 1195, 0), V(-328, 1369, 0)),
    Part.LineSegment(V(-328, 1369, 0), V(543, 1369, 0)),
    Part.LineSegment(V(543, 1369, 0), V(543, 1195, 0)),
    Part.LineSegment(V(543, 1195, 0), V(-328, 1195, 0)),
], False)
sketch21.addConstraint([
    Sketcher.Constraint("Coincident", 0, 2, 1, 1),
    Sketcher.Constraint("Coincident", 1, 2, 2, 1),
    Sketcher.Constraint("Coincident", 2, 2, 3, 1),
    Sketcher.Constraint("Coincident", 3, 2, 0, 1),
    Sketcher.Constraint("Vertical", 0),
    Sketcher.Constraint("Horizontal", 1),
    Sketcher.Constraint("Vertical", 2),
    Sketcher.Constraint("Horizontal", 3),
    Sketcher.Constraint("DistanceX", 1, 1, 1, 2, 871.0),
    Sketcher.Constraint("DistanceY", 0, 1, 0, 2, 174.0),
    Sketcher.Constraint("DistanceX", 0, 2, -1, 1, 327.691439),
    Sketcher.Constraint("DistanceY", -1, 1, 0, 2, 1368.512559),
])
pad21 = body.newObject("PartDesign::Pad", "Pad020")
pad21.Profile = sketch21
pad21.Length = 207
pad21.Reversed = True

# Sketch on XZ plane
sketch22 = body.newObject("Sketcher::SketchObject", "Sketch021")
sketch22.AttachmentSupport = (doc.getObject("XZ_Plane"), [""])
sketch22.MapMode = "FlatFace"
sketch22.AttachmentOffset = App.Placement(V(0, 0, -20), App.Rotation())
sketch22.addGeometry([
    Part.LineSegment(V(124, 531, 0), V(124, 705, 0)),
    Part.LineSegment(V(124, 705, 0), V(995, 705, 0)),
    Part.LineSegment(V(995, 705, 0), V(995, 531, 0)),
    Part.LineSegment(V(995, 531, 0), V(124, 531, 0)),
], False)
sketch22.addConstraint([
    Sketcher.Constraint("Coincident", 0, 2, 1, 1),
    Sketcher.Constraint("Coincident", 1, 2, 2, 1),
    Sketcher.Constraint("Coincident", 2, 2, 3, 1),
    Sketcher.Constraint("Coincident", 3, 2, 0, 1),
    Sketcher.Constraint("Vertical", 0),
    Sketcher.Constraint("Horizontal", 1),
    Sketcher.Constraint("Vertical", 2),
    Sketcher.Constraint("Horizontal", 3),
    Sketcher.Constraint("DistanceX", 1, 1, 1, 2, 871.0),
    Sketcher.Constraint("DistanceY", 0, 1, 0, 2, 174.0),
    Sketcher.Constraint("DistanceX", -1, 1, 0, 2, 123.65152),
    Sketcher.Constraint("DistanceY", -1, 1, 0, 2, 705.408042),
])
pad22 = body.newObject("PartDesign::Pad", "Pad021")
pad22.Profile = sketch22
pad22.Length = 185.7
pad22.Reversed = True

# Sketch on XZ plane
sketch23 = body.newObject("Sketcher::SketchObject", "Sketch022")
sketch23.AttachmentSupport = (doc.getObject("XZ_Plane"), [""])
sketch23.MapMode = "FlatFace"
sketch23.AttachmentOffset = App.Placement(V(0, 0, -20), App.Rotation())
sketch23.addGeometry([
    Part.LineSegment(V(-1247, 1859, 0), V(-1247, 2033, 0)),
    Part.LineSegment(V(-1247, 2033, 0), V(-376, 2033, 0)),
    Part.LineSegment(V(-376, 2033, 0), V(-376, 1859, 0)),
    Part.LineSegment(V(-376, 1859, 0), V(-1247, 1859, 0)),
], False)
sketch23.addConstraint([
    Sketcher.Constraint("Coincident", 0, 2, 1, 1),
    Sketcher.Constraint("Coincident", 1, 2, 2, 1),
    Sketcher.Constraint("Coincident", 2, 2, 3, 1),
    Sketcher.Constraint("Coincident", 3, 2, 0, 1),
    Sketcher.Constraint("Vertical", 0),
    Sketcher.Constraint("Horizontal", 1),
    Sketcher.Constraint("Vertical", 2),
    Sketcher.Constraint("Horizontal", 3),
    Sketcher.Constraint("DistanceX", 1, 1, 1, 2, 871.0),
    Sketcher.Constraint("DistanceY", 0, 1, 0, 2, 174.0),
    Sketcher.Constraint("DistanceY", -1, 1, 0, 2, 2032.834521),
    Sketcher.Constraint("DistanceX", 0, 2, -1, 1, 1246.888936),
])
pad23 = body.newObject("PartDesign::Pad", "Pad022")
pad23.Profile = sketch23
pad23.Length = 207
pad23.Reversed = True

# Sketch on XZ plane
sketch24 = body.newObject("Sketcher::SketchObject", "Sketch023")
sketch24.AttachmentSupport = (doc.getObject("XZ_Plane"), [""])
sketch24.MapMode = "FlatFace"
sketch24.AttachmentOffset = App.Placement(V(0, 0, -20), App.Rotation())
sketch24.addGeometry([
    Part.LineSegment(V(-311, 1863, 0), V(-311, 2037, 0)),
    Part.LineSegment(V(-311, 2037, 0), V(560, 2037, 0)),
    Part.LineSegment(V(560, 2037, 0), V(560, 1863, 0)),
    Part.LineSegment(V(560, 1863, 0), V(-311, 1863, 0)),
], False)
sketch24.addConstraint([
    Sketcher.Constraint("Coincident", 0, 2, 1, 1),
    Sketcher.Constraint("Coincident", 1, 2, 2, 1),
    Sketcher.Constraint("Coincident", 2, 2, 3, 1),
    Sketcher.Constraint("Coincident", 3, 2, 0, 1),
    Sketcher.Constraint("Vertical", 0),
    Sketcher.Constraint("Horizontal", 1),
    Sketcher.Constraint("Vertical", 2),
    Sketcher.Constraint("Horizontal", 3),
    Sketcher.Constraint("DistanceX", 1, 1, 1, 2, 871.0),
    Sketcher.Constraint("DistanceY", 0, 1, 0, 2, 174.0),
    Sketcher.Constraint("DistanceY", -1, 1, 0, 2, 2037.29553),
    Sketcher.Constraint("DistanceX", 0, 2, -1, 1, 311.079516),
])
pad24 = body.newObject("PartDesign::Pad", "Pad023")
pad24.Profile = sketch24
pad24.Length = 185.7
pad24.Reversed = True

# Sketch on XZ plane
sketch25 = body.newObject("Sketcher::SketchObject", "Sketch024")
sketch25.AttachmentSupport = (doc.getObject("XZ_Plane"), [""])
sketch25.MapMode = "FlatFace"
sketch25.AttachmentOffset = App.Placement(V(0, 0, -20), App.Rotation())
sketch25.addGeometry([
    Part.LineSegment(V(-2169, 1868, 0), V(-2169, 2042, 0)),
    Part.LineSegment(V(-2169, 2042, 0), V(-1298, 2042, 0)),
    Part.LineSegment(V(-1298, 2042, 0), V(-1298, 1868, 0)),
    Part.LineSegment(V(-1298, 1868, 0), V(-2169, 1868, 0)),
], False)
sketch25.addConstraint([
    Sketcher.Constraint("Coincident", 0, 2, 1, 1),
    Sketcher.Constraint("Coincident", 1, 2, 2, 1),
    Sketcher.Constraint("Coincident", 2, 2, 3, 1),
    Sketcher.Constraint("Coincident", 3, 2, 0, 1),
    Sketcher.Constraint("Vertical", 0),
    Sketcher.Constraint("Horizontal", 1),
    Sketcher.Constraint("Vertical", 2),
    Sketcher.Constraint("Horizontal", 3),
    Sketcher.Constraint("DistanceX", 1, 1, 1, 2, 871.0),
    Sketcher.Constraint("DistanceY", 0, 1, 0, 2, 174.0),
    Sketcher.Constraint("DistanceX", 0, 2, -1, 1, 2168.740196),
    Sketcher.Constraint("DistanceY", -1, 1, 0, 2, 2041.926685),
])
pad25 = body.newObject("PartDesign::Pad", "Pad024")
pad25.Profile = sketch25
pad25.Length = 185.7
pad25.Reversed = True

# Sketch on XZ plane
sketch26 = body.newObject("Sketcher::SketchObject", "Sketch025")
sketch26.AttachmentSupport = (doc.getObject("XZ_Plane"), [""])
sketch26.MapMode = "FlatFace"
sketch26.AttachmentOffset = App.Placement(V(0, 0, -20), App.Rotation())
sketch26.addGeometry([
    Part.LineSegment(V(-2106, -152, 0), V(-2106, 719, 0)),
    Part.LineSegment(V(-2106, 719, 0), V(-1932, 719, 0)),
    Part.LineSegment(V(-1932, 719, 0), V(-1932, -152, 0)),
    Part.LineSegment(V(-1932, -152, 0), V(-2106, -152, 0)),
], False)
sketch26.addConstraint([
    Sketcher.Constraint("Coincident", 0, 2, 1, 1),
    Sketcher.Constraint("Coincident", 1, 2, 2, 1),
    Sketcher.Constraint("Coincident", 2, 2, 3, 1),
    Sketcher.Constraint("Coincident", 3, 2, 0, 1),
    Sketcher.Constraint("Vertical", 0),
    Sketcher.Constraint("Horizontal", 1),
    Sketcher.Constraint("Vertical", 2),
    Sketcher.Constraint("Horizontal", 3),
    Sketcher.Constraint("DistanceX", 1, 1, 1, 2, 174.0),
    Sketcher.Constraint("DistanceY", 0, 1, 0, 2, 871.0),
    Sketcher.Constraint("DistanceY", -1, 1, 0, 2, 719.256952),
    Sketcher.Constraint("DistanceX", 0, 2, -1, 1, 2106.015377),
])
pad26 = body.newObject("PartDesign::Pad", "Pad025")
pad26.Profile = sketch26
pad26.Length = 185.7
pad26.Reversed = True

doc.recompute()
